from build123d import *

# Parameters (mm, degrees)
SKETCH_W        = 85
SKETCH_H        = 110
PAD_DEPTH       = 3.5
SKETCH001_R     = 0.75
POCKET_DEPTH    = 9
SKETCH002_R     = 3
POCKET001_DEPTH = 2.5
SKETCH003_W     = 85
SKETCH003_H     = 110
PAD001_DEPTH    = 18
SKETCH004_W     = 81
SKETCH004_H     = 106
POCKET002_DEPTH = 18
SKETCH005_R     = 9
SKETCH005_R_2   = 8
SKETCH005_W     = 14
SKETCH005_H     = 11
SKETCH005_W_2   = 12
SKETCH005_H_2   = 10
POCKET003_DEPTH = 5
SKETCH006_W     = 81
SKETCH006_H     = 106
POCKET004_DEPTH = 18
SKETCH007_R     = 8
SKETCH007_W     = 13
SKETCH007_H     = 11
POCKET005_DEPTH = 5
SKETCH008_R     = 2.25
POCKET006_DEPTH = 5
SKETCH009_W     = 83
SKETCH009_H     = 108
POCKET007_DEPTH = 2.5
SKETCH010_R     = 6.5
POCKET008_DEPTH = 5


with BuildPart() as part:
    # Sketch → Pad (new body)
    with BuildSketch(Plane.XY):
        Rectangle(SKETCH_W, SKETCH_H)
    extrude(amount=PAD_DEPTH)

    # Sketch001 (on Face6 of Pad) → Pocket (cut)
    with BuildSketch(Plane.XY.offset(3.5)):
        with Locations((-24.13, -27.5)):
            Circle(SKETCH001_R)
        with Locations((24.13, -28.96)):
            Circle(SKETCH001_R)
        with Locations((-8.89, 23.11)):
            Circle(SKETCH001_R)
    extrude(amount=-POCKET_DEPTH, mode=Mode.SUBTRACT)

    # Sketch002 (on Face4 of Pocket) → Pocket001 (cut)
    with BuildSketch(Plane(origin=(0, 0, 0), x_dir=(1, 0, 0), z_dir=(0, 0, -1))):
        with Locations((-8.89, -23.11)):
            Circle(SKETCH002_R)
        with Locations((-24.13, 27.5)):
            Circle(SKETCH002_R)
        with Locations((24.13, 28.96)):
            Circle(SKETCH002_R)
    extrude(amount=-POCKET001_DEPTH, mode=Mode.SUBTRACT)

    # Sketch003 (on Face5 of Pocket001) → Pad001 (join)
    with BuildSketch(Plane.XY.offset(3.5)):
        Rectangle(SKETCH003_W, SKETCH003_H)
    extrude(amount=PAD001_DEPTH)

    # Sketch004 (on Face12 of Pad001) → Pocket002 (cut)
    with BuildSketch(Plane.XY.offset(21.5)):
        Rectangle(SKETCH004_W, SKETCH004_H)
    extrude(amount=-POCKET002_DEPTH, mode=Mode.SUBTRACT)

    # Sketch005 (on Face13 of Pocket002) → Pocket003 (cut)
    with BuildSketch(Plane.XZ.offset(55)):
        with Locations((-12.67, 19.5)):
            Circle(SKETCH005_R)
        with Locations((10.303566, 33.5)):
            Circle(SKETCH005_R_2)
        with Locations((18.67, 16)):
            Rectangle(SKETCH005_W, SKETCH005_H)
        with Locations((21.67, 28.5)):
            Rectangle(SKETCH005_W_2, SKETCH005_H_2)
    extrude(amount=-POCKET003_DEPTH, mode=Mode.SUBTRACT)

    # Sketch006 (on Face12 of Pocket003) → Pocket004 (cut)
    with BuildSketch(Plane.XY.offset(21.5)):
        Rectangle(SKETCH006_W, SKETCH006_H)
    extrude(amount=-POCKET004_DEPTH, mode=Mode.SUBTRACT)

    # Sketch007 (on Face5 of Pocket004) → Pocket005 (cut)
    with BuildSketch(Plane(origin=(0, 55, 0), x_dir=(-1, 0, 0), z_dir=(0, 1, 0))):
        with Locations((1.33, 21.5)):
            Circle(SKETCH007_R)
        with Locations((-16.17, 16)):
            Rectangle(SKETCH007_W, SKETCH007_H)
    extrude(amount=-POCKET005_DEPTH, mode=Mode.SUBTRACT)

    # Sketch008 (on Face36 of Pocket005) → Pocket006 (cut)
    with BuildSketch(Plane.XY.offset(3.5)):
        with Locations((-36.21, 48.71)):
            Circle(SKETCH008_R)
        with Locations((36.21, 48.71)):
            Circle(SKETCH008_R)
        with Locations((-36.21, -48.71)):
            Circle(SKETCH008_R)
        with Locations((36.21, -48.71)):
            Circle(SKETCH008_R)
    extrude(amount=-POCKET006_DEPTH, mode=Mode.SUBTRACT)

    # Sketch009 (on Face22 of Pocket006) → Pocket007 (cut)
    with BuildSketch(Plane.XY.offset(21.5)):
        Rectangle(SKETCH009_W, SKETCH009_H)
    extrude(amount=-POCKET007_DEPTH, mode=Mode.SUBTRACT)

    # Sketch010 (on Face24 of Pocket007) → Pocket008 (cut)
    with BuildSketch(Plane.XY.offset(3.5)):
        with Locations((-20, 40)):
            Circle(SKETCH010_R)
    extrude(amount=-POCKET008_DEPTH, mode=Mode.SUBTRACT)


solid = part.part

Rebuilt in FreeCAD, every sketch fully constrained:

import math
import FreeCAD as App
import Part
import Sketcher

V = App.Vector
Q = App.Units.Quantity

doc = App.newDocument("Part")
body = doc.addObject("PartDesign::Body", "Body")

# Sketch on XY plane
sketch1 = doc.addObject("Sketcher::SketchObject", "Sketch")
body.addObject(sketch1)
sketch1.AttachmentSupport = (doc.XY_Plane, [""])
sketch1.MapMode = "FlatFace"
sketch1.addGeometry([
    Part.LineSegment(V(-42.5, 55, 0), V(-42.5, -55, 0)),
    Part.LineSegment(V(-42.5, -55, 0), V(42.5, -55, 0)),
    Part.LineSegment(V(42.5, -55, 0), V(42.5, 55, 0)),
    Part.LineSegment(V(42.5, 55, 0), V(-42.5, 55, 0)),
], False)
sketch1.addConstraint([
    Sketcher.Constraint("Coincident", 0, 2, 1, 1),
    Sketcher.Constraint("Coincident", 1, 2, 2, 1),
    Sketcher.Constraint("Coincident", 2, 2, 3, 1),
    Sketcher.Constraint("Coincident", 3, 2, 0, 1),
    Sketcher.Constraint("Vertical", 0),
    Sketcher.Constraint("Horizontal", 1),
    Sketcher.Constraint("Vertical", 2),
    Sketcher.Constraint("Horizontal", 3),
    Sketcher.Constraint("Symmetric", 0, 2, 2, 2, -1, 1),
    Sketcher.Constraint("DistanceX", 1, 1, 1, 2, Q("85 mm")),
    Sketcher.Constraint("DistanceY", 0, 2, 0, 1, Q("110 mm")),
])
pad1 = doc.addObject("PartDesign::Pad", "Pad")
body.addObject(pad1)
pad1.Profile = sketch1
pad1.Length = 3.5

# Sketch on XY plane
sketch2 = doc.addObject("Sketcher::SketchObject", "Sketch001")
body.addObject(sketch2)
sketch2.AttachmentSupport = (doc.XY_Plane, [""])
sketch2.MapMode = "FlatFace"
sketch2.AttachmentOffset = App.Placement(V(0, 0, 3.5), App.Rotation())
sketch2.addGeometry([
    Part.Circle(V(-24.13, -27.5, 0), V(0, 0, 1), 0.75),
    Part.Circle(V(24.13, -28.96, 0), V(0, 0, 1), 0.75),
    Part.Circle(V(-8.89, 23.11, 0), V(0, 0, 1), 0.75),
], False)
sketch2.addConstraint([
    Sketcher.Constraint("Equal", 0, 1),
    Sketcher.Constraint("Equal", 1, 2),
    Sketcher.Constraint("Diameter", 0, Q("1.5 mm")),
    Sketcher.Constraint("DistanceY", 0, 3, -1, 1, Q("27.5 mm")),
    Sketcher.Constraint("DistanceX", 0, 3, -1, 1, Q("24.13 mm")),
    Sketcher.Constraint("DistanceX", -1, 1, 1, 3, Q("24.13 mm")),
    Sketcher.Constraint("DistanceY", 1, 3, -1, 1, Q("28.96 mm")),
    Sketcher.Constraint("DistanceX", 2, 3, -1, 1, Q("8.89 mm")),
    Sketcher.Constraint("DistanceY", -1, 1, 2, 3, Q("23.11 mm")),
])
pocket1 = doc.addObject("PartDesign::Pocket", "Pocket")
body.addObject(pocket1)
pocket1.Profile = sketch2
pocket1.Length = 9

# Sketch on XY plane
sketch3 = doc.addObject("Sketcher::SketchObject", "Sketch002")
body.addObject(sketch3)
sketch3.AttachmentSupport = (doc.XY_Plane, [""])
sketch3.MapMode = "FlatFace"
sketch3.addGeometry([
    Part.Circle(V(-8.89, 23.11, 0), V(0, 0, 1), 3),
    Part.Circle(V(-24.13, -27.5, 0), V(0, 0, 1), 3),
    Part.Circle(V(24.13, -28.96, 0), V(0, 0, 1), 3),
], False)
sketch3.addConstraint([
    Sketcher.Constraint("Equal", 0, 1),
    Sketcher.Constraint("Equal", 1, 2),
    Sketcher.Constraint("Diameter", 0, Q("6 mm")),
    Sketcher.Constraint("DistanceY", 1, 3, -1, 1, Q("27.5 mm")),
    Sketcher.Constraint("DistanceX", 0, 3, -1, 1, Q("8.89 mm")),
    Sketcher.Constraint("DistanceY", -1, 1, 0, 3, Q("23.11 mm")),
    Sketcher.Constraint("DistanceX", 1, 3, -1, 1, Q("24.13 mm")),
    Sketcher.Constraint("DistanceX", -1, 1, 2, 3, Q("24.13 mm")),
    Sketcher.Constraint("DistanceY", 2, 3, -1, 1, Q("28.96 mm")),
])
pocket2 = doc.addObject("PartDesign::Pocket", "Pocket001")
body.addObject(pocket2)
pocket2.Profile = sketch3
pocket2.Length = 2.5
pocket2.Reversed = True

# Sketch on XY plane
sketch4 = doc.addObject("Sketcher::SketchObject", "Sketch003")
body.addObject(sketch4)
sketch4.AttachmentSupport = (doc.XY_Plane, [""])
sketch4.MapMode = "FlatFace"
sketch4.AttachmentOffset = App.Placement(V(0, 0, 3.5), App.Rotation())
sketch4.addGeometry([
    Part.LineSegment(V(-42.5, 55, 0), V(-42.5, -55, 0)),
    Part.LineSegment(V(-42.5, -55, 0), V(42.5, -55, 0)),
    Part.LineSegment(V(42.5, -55, 0), V(42.5, 55, 0)),
    Part.LineSegment(V(42.5, 55, 0), V(-42.5, 55, 0)),
], False)
sketch4.addConstraint([
    Sketcher.Constraint("Coincident", 0, 2, 1, 1),
    Sketcher.Constraint("Coincident", 1, 2, 2, 1),
    Sketcher.Constraint("Coincident", 2, 2, 3, 1),
    Sketcher.Constraint("Coincident", 3, 2, 0, 1),
    Sketcher.Constraint("Vertical", 0),
    Sketcher.Constraint("Horizontal", 1),
    Sketcher.Constraint("Vertical", 2),
    Sketcher.Constraint("Horizontal", 3),
    Sketcher.Constraint("Symmetric", 0, 2, 2, 2, -1, 1),
    Sketcher.Constraint("DistanceX", 1, 1, 1, 2, Q("85 mm")),
    Sketcher.Constraint("DistanceY", 0, 2, 0, 1, Q("110 mm")),
])
pad2 = doc.addObject("PartDesign::Pad", "Pad001")
body.addObject(pad2)
pad2.Profile = sketch4
pad2.Length = 18

# Sketch on XY plane
sketch5 = doc.addObject("Sketcher::SketchObject", "Sketch004")
body.addObject(sketch5)
sketch5.AttachmentSupport = (doc.XY_Plane, [""])
sketch5.MapMode = "FlatFace"
sketch5.AttachmentOffset = App.Placement(V(0, 0, 21.5), App.Rotation())
sketch5.addGeometry([
    Part.LineSegment(V(-40.5, 53, 0), V(-40.5, -53, 0)),
    Part.LineSegment(V(-40.5, -53, 0), V(40.5, -53, 0)),
    Part.LineSegment(V(40.5, -53, 0), V(40.5, 53, 0)),
    Part.LineSegment(V(40.5, 53, 0), V(-40.5, 53, 0)),
], False)
sketch5.addConstraint([
    Sketcher.Constraint("Coincident", 0, 2, 1, 1),
    Sketcher.Constraint("Coincident", 1, 2, 2, 1),
    Sketcher.Constraint("Coincident", 2, 2, 3, 1),
    Sketcher.Constraint("Coincident", 3, 2, 0, 1),
    Sketcher.Constraint("Vertical", 0),
    Sketcher.Constraint("Horizontal", 1),
    Sketcher.Constraint("Vertical", 2),
    Sketcher.Constraint("Horizontal", 3),
    Sketcher.Constraint("Symmetric", 0, 2, 2, 2, -1, 1),
    Sketcher.Constraint("DistanceX", 1, 1, 1, 2, Q("81 mm")),
    Sketcher.Constraint("DistanceY", 0, 2, 0, 1, Q("106 mm")),
])
pocket3 = doc.addObject("PartDesign::Pocket", "Pocket002")
body.addObject(pocket3)
pocket3.Profile = sketch5
pocket3.Length = 18

# Sketch on XZ plane
sketch6 = doc.addObject("Sketcher::SketchObject", "Sketch005")
body.addObject(sketch6)
sketch6.AttachmentSupport = (doc.XZ_Plane, [""])
sketch6.MapMode = "FlatFace"
sketch6.AttachmentOffset = App.Placement(V(0, 0, 55), App.Rotation())
sketch6.addGeometry([
    Part.Circle(V(-12.67, 19.5, 0), V(0, 0, 1), 9),  # 0
    Part.ArcOfCircle(Part.Circle(V(10.303566, 33.5, 0), V(0, 0, 1), 8), math.radians(0), math.radians(312.129168)),  # 1
    Part.LineSegment(V(15.67, 27.566924, 0), V(15.67, 23.5, 0)),  # 2
    Part.LineSegment(V(15.67, 23.5, 0), V(27.67, 23.5, 0)),  # 3
    Part.LineSegment(V(27.67, 23.5, 0), V(27.67, 33.5, 0)),  # 4
    Part.LineSegment(V(27.67, 33.5, 0), V(18.303566, 33.5, 0)),  # 5
    Part.LineSegment(V(11.67, 21.5, 0), V(11.67, 10.5, 0)),  # 6
    Part.LineSegment(V(11.67, 10.5, 0), V(25.67, 10.5, 0)),  # 7
    Part.LineSegment(V(25.67, 10.5, 0), V(25.67, 21.5, 0)),  # 8
    Part.LineSegment(V(25.67, 21.5, 0), V(11.67, 21.5, 0)),  # 9
], False)
sketch6.addConstraint([
    Sketcher.Constraint("Coincident", 1, 2, 2, 1),
    Sketcher.Constraint("Coincident", 2, 2, 3, 1),
    Sketcher.Constraint("Coincident", 3, 2, 4, 1),
    Sketcher.Constraint("Coincident", 4, 2, 5, 1),
    Sketcher.Constraint("Coincident", 5, 2, 1, 1),
    Sketcher.Constraint("Coincident", 6, 2, 7, 1),
    Sketcher.Constraint("Coincident", 7, 2, 8, 1),
    Sketcher.Constraint("Coincident", 8, 2, 9, 1),
    Sketcher.Constraint("Coincident", 9, 2, 6, 1),
    Sketcher.Constraint("Vertical", 2),
    Sketcher.Constraint("Horizontal", 3),
    Sketcher.Constraint("Vertical", 4),
    Sketcher.Constraint("Horizontal", 5),
    Sketcher.Constraint("Vertical", 6),
    Sketcher.Constraint("Horizontal", 7),
    Sketcher.Constraint("Vertical", 8),
    Sketcher.Constraint("Horizontal", 9),
    Sketcher.Constraint("Horizontal", 1, 3, 4, 2),
    Sketcher.Constraint("Diameter", 0, Q("18 mm")),
    Sketcher.Constraint("Radius", 1, Q("8 mm")),
    Sketcher.Constraint("DistanceX", 3, 1, 3, 2, Q("12 mm")),
    Sketcher.Constraint("DistanceX", 7, 1, 7, 2, Q("14 mm")),
    Sketcher.Constraint("DistanceY", 4, 1, 4, 2, Q("10 mm")),
    Sketcher.Constraint("DistanceY", 6, 2, 6, 1, Q("11 mm")),
    Sketcher.Constraint("DistanceY", 0, 3, 1, 3, Q("14 mm")),
    Sketcher.Constraint("DistanceX", 6, 2, 2, 2, Q("4 mm")),
    Sketcher.Constraint("DistanceY", 6, 2, 2, 2, Q("13 mm")),
    Sketcher.Constraint("DistanceY", -1, 1, 0, 3, Q("19.5 mm")),
    Sketcher.Constraint("DistanceX", 0, 3, -1, 1, Q("12.67 mm")),
    Sketcher.Constraint("DistanceX", -1, 1, 1, 2, Q("15.67 mm")),
    Sketcher.Constraint("DistanceX", 5, 2, 5, 1, Q("9.366434 mm")),
])
pocket4 = doc.addObject("PartDesign::Pocket", "Pocket003")
body.addObject(pocket4)
pocket4.Profile = sketch6
pocket4.Length = 5

# Sketch on XY plane
sketch7 = doc.addObject("Sketcher::SketchObject", "Sketch006")
body.addObject(sketch7)
sketch7.AttachmentSupport = (doc.XY_Plane, [""])
sketch7.MapMode = "FlatFace"
sketch7.AttachmentOffset = App.Placement(V(0, 0, 21.5), App.Rotation())
sketch7.addGeometry([
    Part.LineSegment(V(-40.5, 53, 0), V(-40.5, -53, 0)),
    Part.LineSegment(V(-40.5, -53, 0), V(40.5, -53, 0)),
    Part.LineSegment(V(40.5, -53, 0), V(40.5, 53, 0)),
    Part.LineSegment(V(40.5, 53, 0), V(-40.5, 53, 0)),
], False)
sketch7.addConstraint([
    Sketcher.Constraint("Coincident", 0, 2, 1, 1),
    Sketcher.Constraint("Coincident", 1, 2, 2, 1),
    Sketcher.Constraint("Coincident", 2, 2, 3, 1),
    Sketcher.Constraint("Coincident", 3, 2, 0, 1),
    Sketcher.Constraint("Vertical", 0),
    Sketcher.Constraint("Horizontal", 1),
    Sketcher.Constraint("Vertical", 2),
    Sketcher.Constraint("Horizontal", 3),
    Sketcher.Constraint("Symmetric", 0, 2, 2, 2, -1, 1),
    Sketcher.Constraint("DistanceX", 1, 1, 1, 2, Q("81 mm")),
    Sketcher.Constraint("DistanceY", 0, 2, 0, 1, Q("106 mm")),
])
pocket5 = doc.addObject("PartDesign::Pocket", "Pocket004")
body.addObject(pocket5)
pocket5.Profile = sketch7
pocket5.Length = 18

# Sketch on XZ plane
sketch8 = doc.addObject("Sketcher::SketchObject", "Sketch007")
body.addObject(sketch8)
sketch8.AttachmentSupport = (doc.XZ_Plane, [""])
sketch8.MapMode = "FlatFace"
sketch8.AttachmentOffset = App.Placement(V(0, 0, -55), App.Rotation())
sketch8.addGeometry([
    Part.Circle(V(-1.33, 21.5, 0), V(0, 0, 1), 8),  # 0
    Part.LineSegment(V(22.67, 21.5, 0), V(22.67, 10.5, 0)),  # 1
    Part.LineSegment(V(22.67, 10.5, 0), V(9.67, 10.5, 0)),  # 2
    Part.LineSegment(V(9.67, 10.5, 0), V(9.67, 21.5, 0)),  # 3
    Part.LineSegment(V(9.67, 21.5, 0), V(22.67, 21.5, 0)),  # 4
], False)
sketch8.addConstraint([
    Sketcher.Constraint("Coincident", 1, 2, 2, 1),
    Sketcher.Constraint("Coincident", 2, 2, 3, 1),
    Sketcher.Constraint("Coincident", 3, 2, 4, 1),
    Sketcher.Constraint("Coincident", 4, 2, 1, 1),
    Sketcher.Constraint("Vertical", 1),
    Sketcher.Constraint("Horizontal", 2),
    Sketcher.Constraint("Vertical", 3),
    Sketcher.Constraint("Horizontal", 4),
    Sketcher.Constraint("Horizontal", 0, 3, 3, 2),
    Sketcher.Constraint("Diameter", 0, Q("16 mm")),
    Sketcher.Constraint("DistanceX", 2, 2, 2, 1, Q("13 mm")),
    Sketcher.Constraint("DistanceY", 1, 2, 1, 1, Q("11 mm")),
    Sketcher.Constraint("DistanceX", 0, 3, 1, 2, Q("24 mm")),
    Sketcher.Constraint("DistanceY", -1, 1, 0, 3, Q("21.5 mm")),
    Sketcher.Constraint("DistanceX", 0, 3, -1, 1, Q("1.33 mm")),
])
pocket6 = doc.addObject("PartDesign::Pocket", "Pocket005")
body.addObject(pocket6)
pocket6.Profile = sketch8
pocket6.Length = 5
pocket6.Reversed = True

# Sketch on XY plane
sketch9 = doc.addObject("Sketcher::SketchObject", "Sketch008")
body.addObject(sketch9)
sketch9.AttachmentSupport = (doc.XY_Plane, [""])
sketch9.MapMode = "FlatFace"
sketch9.AttachmentOffset = App.Placement(V(0, 0, 3.5), App.Rotation())
sketch9.addGeometry([
    Part.Circle(V(-36.21, 48.71, 0), V(0, 0, 1), 2.25),
    Part.Circle(V(36.21, 48.71, 0), V(0, 0, 1), 2.25),
    Part.Circle(V(-36.21, -48.71, 0), V(0, 0, 1), 2.25),
    Part.Circle(V(36.21, -48.71, 0), V(0, 0, 1), 2.25),
], False)
sketch9.addConstraint([
    Sketcher.Constraint("Equal", 0, 1),
    Sketcher.Constraint("Equal", 1, 2),
    Sketcher.Constraint("Equal", 2, 3),
    Sketcher.Constraint("Symmetric", 1, 3, 2, 3, -1, 1),
    Sketcher.Constraint("Symmetric", 0, 3, 3, 3, -1, 1),
    Sketcher.Constraint("Symmetric", 0, 3, 1, 3, -2),
    Sketcher.Constraint("Diameter", 0, Q("4.5 mm")),
    Sketcher.Constraint("DistanceX", 0, 3, -1, 1, Q("36.21 mm")),
    Sketcher.Constraint("DistanceY", -1, 1, 0, 3, Q("48.71 mm")),
])
pocket7 = doc.addObject("PartDesign::Pocket", "Pocket006")
body.addObject(pocket7)
pocket7.Profile = sketch9
pocket7.Length = 5

# Sketch on XY plane
sketch10 = doc.addObject("Sketcher::SketchObject", "Sketch009")
body.addObject(sketch10)
sketch10.AttachmentSupport = (doc.XY_Plane, [""])
sketch10.MapMode = "FlatFace"
sketch10.AttachmentOffset = App.Placement(V(0, 0, 21.5), App.Rotation())
sketch10.addGeometry([
    Part.LineSegment(V(-41.5, 54, 0), V(-41.5, -54, 0)),
    Part.LineSegment(V(-41.5, -54, 0), V(41.5, -54, 0)),
    Part.LineSegment(V(41.5, -54, 0), V(41.5, 54, 0)),
    Part.LineSegment(V(41.5, 54, 0), V(-41.5, 54, 0)),
], False)
sketch10.addConstraint([
    Sketcher.Constraint("Coincident", 0, 2, 1, 1),
    Sketcher.Constraint("Coincident", 1, 2, 2, 1),
    Sketcher.Constraint("Coincident", 2, 2, 3, 1),
    Sketcher.Constraint("Coincident", 3, 2, 0, 1),
    Sketcher.Constraint("Vertical", 0),
    Sketcher.Constraint("Horizontal", 1),
    Sketcher.Constraint("Vertical", 2),
    Sketcher.Constraint("Horizontal", 3),
    Sketcher.Constraint("Symmetric", 0, 2, 2, 2, -1, 1),
    Sketcher.Constraint("DistanceX", 1, 1, 1, 2, Q("83 mm")),
    Sketcher.Constraint("DistanceY", 0, 2, 0, 1, Q("108 mm")),
])
pocket8 = doc.addObject("PartDesign::Pocket", "Pocket007")
body.addObject(pocket8)
pocket8.Profile = sketch10
pocket8.Length = 2.5

# Sketch on XY plane
sketch11 = doc.addObject("Sketcher::SketchObject", "Sketch010")
body.addObject(sketch11)
sketch11.AttachmentSupport = (doc.XY_Plane, [""])
sketch11.MapMode = "FlatFace"
sketch11.AttachmentOffset = App.Placement(V(0, 0, 3.5), App.Rotation())
sketch11.addGeometry(Part.Circle(V(-20, 40, 0), V(0, 0, 1), 6.5), False)
sketch11.addConstraint([
    Sketcher.Constraint("Diameter", 0, Q("13 mm")),
    Sketcher.Constraint("DistanceX", 0, 3, -1, 1, Q("20 mm")),
    Sketcher.Constraint("DistanceY", -1, 1, 0, 3, Q("40 mm")),
])
pocket9 = doc.addObject("PartDesign::Pocket", "Pocket008")
body.addObject(pocket9)
pocket9.Profile = sketch11
pocket9.Length = 5

doc.recompute()
